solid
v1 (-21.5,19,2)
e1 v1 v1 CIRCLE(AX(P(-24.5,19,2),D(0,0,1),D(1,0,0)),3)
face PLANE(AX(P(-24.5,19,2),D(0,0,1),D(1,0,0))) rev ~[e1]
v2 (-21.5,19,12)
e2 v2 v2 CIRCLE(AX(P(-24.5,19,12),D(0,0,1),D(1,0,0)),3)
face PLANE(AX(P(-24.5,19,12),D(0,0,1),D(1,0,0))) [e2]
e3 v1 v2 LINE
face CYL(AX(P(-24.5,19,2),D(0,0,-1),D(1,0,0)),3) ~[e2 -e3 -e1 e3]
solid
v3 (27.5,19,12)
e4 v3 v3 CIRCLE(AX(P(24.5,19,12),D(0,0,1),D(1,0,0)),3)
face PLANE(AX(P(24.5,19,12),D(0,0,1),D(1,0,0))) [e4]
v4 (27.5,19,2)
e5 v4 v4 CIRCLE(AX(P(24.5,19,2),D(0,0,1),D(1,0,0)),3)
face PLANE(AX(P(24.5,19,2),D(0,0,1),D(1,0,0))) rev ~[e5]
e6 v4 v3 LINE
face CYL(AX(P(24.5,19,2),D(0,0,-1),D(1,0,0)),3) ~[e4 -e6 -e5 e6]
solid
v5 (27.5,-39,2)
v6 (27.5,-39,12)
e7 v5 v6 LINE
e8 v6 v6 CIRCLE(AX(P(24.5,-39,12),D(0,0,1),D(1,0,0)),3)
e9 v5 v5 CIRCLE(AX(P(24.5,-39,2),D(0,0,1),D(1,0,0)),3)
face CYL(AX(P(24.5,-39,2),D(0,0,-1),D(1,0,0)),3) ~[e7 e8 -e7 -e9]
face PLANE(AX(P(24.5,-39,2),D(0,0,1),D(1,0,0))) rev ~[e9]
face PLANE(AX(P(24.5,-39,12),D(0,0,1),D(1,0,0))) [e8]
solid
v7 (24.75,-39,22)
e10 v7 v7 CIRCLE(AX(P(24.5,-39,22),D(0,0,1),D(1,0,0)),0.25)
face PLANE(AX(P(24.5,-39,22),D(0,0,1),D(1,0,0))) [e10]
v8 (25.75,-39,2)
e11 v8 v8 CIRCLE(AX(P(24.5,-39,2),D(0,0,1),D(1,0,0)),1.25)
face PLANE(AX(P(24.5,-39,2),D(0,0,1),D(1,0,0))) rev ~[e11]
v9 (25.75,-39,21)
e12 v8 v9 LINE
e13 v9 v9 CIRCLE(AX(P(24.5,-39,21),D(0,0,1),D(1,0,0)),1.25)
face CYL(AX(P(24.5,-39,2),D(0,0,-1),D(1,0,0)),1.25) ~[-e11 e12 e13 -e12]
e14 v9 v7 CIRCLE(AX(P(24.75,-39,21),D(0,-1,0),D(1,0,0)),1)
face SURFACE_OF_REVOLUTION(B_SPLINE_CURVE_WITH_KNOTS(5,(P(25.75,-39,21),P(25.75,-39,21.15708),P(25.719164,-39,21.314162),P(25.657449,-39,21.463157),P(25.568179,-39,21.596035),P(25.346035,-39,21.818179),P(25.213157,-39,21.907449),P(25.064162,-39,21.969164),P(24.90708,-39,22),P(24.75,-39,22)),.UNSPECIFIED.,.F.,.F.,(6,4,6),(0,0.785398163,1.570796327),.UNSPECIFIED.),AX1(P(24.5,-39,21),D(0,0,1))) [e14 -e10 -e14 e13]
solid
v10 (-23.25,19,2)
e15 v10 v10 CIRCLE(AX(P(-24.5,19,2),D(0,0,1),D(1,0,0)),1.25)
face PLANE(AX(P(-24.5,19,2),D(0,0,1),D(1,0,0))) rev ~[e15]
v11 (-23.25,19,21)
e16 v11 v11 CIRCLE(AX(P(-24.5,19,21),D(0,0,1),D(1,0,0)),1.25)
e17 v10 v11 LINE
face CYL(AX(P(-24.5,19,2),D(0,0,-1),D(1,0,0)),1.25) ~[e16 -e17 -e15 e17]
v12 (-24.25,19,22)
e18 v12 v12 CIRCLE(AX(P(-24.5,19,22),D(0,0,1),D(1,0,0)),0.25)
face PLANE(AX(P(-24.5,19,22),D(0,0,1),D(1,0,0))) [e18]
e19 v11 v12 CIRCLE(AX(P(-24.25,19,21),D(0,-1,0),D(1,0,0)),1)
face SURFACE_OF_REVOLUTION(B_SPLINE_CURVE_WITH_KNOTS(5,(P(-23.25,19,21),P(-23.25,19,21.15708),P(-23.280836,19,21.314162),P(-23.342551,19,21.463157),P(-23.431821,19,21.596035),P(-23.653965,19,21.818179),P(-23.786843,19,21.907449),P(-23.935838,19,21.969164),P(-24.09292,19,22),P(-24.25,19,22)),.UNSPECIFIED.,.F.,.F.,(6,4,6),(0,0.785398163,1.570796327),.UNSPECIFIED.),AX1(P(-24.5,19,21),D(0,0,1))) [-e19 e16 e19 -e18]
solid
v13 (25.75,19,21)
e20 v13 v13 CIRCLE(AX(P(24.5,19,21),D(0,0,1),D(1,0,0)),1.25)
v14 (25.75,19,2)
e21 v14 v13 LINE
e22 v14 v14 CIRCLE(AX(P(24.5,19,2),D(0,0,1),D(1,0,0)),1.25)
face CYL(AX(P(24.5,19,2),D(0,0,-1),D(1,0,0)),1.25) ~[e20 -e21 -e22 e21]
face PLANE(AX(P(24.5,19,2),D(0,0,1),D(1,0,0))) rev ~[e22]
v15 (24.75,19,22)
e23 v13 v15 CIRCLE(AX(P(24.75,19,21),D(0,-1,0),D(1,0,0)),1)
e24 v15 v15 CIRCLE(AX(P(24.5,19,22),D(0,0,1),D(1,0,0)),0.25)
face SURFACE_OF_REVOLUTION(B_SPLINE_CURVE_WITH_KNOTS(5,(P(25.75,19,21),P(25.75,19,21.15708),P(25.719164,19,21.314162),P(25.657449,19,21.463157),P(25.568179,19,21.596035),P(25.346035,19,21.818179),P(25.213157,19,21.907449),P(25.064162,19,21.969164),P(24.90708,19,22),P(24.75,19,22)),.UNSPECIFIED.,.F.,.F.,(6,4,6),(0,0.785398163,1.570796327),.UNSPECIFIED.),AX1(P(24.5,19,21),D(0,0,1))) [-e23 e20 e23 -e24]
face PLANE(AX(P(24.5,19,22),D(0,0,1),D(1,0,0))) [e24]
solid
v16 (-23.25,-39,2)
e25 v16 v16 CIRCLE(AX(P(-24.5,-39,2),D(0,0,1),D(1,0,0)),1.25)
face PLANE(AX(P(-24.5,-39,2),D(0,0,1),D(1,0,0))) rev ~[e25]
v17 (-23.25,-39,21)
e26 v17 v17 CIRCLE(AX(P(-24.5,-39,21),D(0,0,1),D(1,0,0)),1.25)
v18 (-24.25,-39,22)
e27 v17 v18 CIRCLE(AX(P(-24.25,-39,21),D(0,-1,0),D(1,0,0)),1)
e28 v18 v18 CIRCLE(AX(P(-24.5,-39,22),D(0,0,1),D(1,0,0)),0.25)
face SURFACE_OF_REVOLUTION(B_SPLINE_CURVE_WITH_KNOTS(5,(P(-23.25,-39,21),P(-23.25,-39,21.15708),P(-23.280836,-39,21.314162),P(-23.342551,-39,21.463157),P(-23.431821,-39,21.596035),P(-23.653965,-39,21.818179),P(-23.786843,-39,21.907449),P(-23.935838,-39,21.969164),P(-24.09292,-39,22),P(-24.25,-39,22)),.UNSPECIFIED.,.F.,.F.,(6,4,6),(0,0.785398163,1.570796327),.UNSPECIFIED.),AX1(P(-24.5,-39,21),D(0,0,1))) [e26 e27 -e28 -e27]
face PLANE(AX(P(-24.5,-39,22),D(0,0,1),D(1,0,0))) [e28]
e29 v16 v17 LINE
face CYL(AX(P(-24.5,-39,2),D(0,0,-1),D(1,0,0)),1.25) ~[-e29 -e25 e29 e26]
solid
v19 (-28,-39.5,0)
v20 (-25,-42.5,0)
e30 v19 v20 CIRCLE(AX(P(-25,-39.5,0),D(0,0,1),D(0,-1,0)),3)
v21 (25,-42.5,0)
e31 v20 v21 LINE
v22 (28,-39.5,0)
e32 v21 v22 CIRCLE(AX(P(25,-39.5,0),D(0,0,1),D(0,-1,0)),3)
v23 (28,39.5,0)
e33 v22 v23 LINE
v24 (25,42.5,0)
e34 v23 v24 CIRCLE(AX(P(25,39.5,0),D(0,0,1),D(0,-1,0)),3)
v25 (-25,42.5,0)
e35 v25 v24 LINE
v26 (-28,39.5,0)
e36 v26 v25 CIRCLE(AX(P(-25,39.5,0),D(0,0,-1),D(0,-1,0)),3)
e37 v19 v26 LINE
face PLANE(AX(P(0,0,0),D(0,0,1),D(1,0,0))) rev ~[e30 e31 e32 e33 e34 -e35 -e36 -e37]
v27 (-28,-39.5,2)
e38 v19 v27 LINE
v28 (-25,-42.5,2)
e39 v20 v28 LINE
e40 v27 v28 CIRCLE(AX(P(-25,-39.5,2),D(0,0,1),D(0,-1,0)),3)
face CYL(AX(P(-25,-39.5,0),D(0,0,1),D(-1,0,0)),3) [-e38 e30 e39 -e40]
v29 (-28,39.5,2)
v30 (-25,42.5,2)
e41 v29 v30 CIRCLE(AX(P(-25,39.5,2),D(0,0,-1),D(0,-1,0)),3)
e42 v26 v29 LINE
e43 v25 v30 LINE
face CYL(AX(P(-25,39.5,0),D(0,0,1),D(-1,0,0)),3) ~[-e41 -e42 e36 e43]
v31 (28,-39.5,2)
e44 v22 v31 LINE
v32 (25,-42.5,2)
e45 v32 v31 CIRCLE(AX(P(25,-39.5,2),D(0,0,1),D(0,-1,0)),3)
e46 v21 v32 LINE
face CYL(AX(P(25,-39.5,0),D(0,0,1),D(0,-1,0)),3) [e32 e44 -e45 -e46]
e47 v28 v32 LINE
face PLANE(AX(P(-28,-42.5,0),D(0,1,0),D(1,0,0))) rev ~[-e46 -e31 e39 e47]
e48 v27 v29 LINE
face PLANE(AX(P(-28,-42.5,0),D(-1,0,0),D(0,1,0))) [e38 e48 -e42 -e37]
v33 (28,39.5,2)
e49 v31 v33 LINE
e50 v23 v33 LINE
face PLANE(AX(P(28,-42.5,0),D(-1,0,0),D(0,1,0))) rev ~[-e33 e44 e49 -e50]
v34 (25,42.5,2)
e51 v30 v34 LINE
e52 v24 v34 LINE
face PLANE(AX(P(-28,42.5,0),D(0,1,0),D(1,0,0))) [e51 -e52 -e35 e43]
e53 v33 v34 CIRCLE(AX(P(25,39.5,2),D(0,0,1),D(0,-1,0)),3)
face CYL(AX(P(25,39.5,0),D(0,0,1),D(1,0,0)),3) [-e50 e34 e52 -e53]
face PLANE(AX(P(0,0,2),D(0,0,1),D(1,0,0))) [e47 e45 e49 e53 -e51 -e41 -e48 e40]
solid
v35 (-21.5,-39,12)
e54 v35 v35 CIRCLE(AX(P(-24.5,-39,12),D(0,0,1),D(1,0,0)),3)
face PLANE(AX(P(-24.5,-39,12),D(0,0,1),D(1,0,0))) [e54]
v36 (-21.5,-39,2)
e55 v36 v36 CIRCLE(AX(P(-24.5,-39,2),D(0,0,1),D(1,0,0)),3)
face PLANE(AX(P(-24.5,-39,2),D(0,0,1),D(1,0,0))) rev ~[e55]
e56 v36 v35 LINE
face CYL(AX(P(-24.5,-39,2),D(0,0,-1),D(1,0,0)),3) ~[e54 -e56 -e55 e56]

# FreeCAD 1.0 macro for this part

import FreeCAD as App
import Part
import Sketcher

V = App.Vector


def edges_at(feature, points):
    """Names of the edges that pass closest to the given points."""
    edges = feature.Shape.Edges
    near = lambda p: min(range(len(edges)), key=lambda i: edges[i].distToShape(Part.Vertex(*p))[0])
    return sorted({f"Edge{near(p) + 1}" for p in points})


def add_polygon(sketch, points):
    """Adds a closed chain of lines whose ends are joined by coincident constraints."""
    first, n = sketch.GeometryCount, len(points)
    for a, b in zip(points, points[1:] + points[:1]):
        sketch.addGeometry(Part.LineSegment(App.Vector(*a, 0), App.Vector(*b, 0)), False)
    for i in range(n):
        sketch.addConstraint(Sketcher.Constraint("Coincident", first + i, 2, first + (i + 1) % n, 1))

doc = App.newDocument("Part")
params = doc.addObject("Spreadsheet::Sheet", "Params")
for row, (alias, value) in enumerate([
    ("sketch1_width", "56 mm"),
    ("sketch1_height", "85 mm"),
    ("pad1_length", "2 mm"),
    ("fillet_radius", "3 mm"),
    ("sketch2_diameter", "2.5 mm"),
    ("pad2_length", "20 mm"),
    ("fillet2_radius", "1 mm"),
    ("sketch3_diameter", "6 mm"),
    ("pad3_length", "10 mm"),
], start=1):
    params.set(f"A{row}", alias)
    params.set(f"B{row}", "=" + value)
    params.setAlias(f"B{row}", alias)

body = doc.addObject("PartDesign::Body", "Body")

sketch1 = body.newObject("Sketcher::SketchObject", "Sketch")
sketch1.AttachmentSupport = (doc.getObject("XY_Plane"), [""])
sketch1.MapMode = "FlatFace"
add_polygon(sketch1, [(-28, 42.5), (-28, -42.5), (28, -42.5), (28, 42.5)])
sketch1.addConstraint([
    Sketcher.Constraint("Vertical", 0),
    Sketcher.Constraint("Horizontal", 1),
    Sketcher.Constraint("Vertical", 2),
    Sketcher.Constraint("Horizontal", 3),
    Sketcher.Constraint("Symmetric", 0, 2, 2, 2, -1, 1),
    Sketcher.Constraint("DistanceX", 1, 1, 1, 2, 56.0),
    Sketcher.Constraint("DistanceY", 0, 2, 0, 1, 85.0),
])
sketch1.setExpression("Constraints[9]", "Params.sketch1_width")
sketch1.setExpression("Constraints[10]", "Params.sketch1_height")
pad1 = body.newObject("PartDesign::Pad", "Pad")
pad1.Profile = sketch1
pad1.setExpression("Length", "Params.pad1_length")
doc.recompute()

fillet = body.newObject("PartDesign::Fillet", "Fillet")
fillet.Base = (pad1, edges_at(pad1, [
    (-28, 42.5, 1),
    (28, 42.5, 1),
    (28, -42.5, 1),
    (-28, -42.5, 1),
]))
fillet.setExpression("Radius", "Params.fillet_radius")
body2 = doc.addObject("PartDesign::Body", "Body001")
body2.AllowCompound = True

sketch2 = body2.newObject("Sketcher::SketchObject", "Sketch001")
sketch2.AttachmentSupport = (doc.getObject("XY_Plane001"), [""])
sketch2.MapMode = "FlatFace"
sketch2.AttachmentOffset = App.Placement(V(0, 0, 2), App.Rotation())
sketch2.addGeometry([
    Part.Circle(V(-24.5, -39, 0), V(0, 0, 1), 1.25),
    Part.Circle(V(24.5, -39, 0), V(0, 0, 1), 1.25),
    Part.Circle(V(-24.5, 19, 0), V(0, 0, 1), 1.25),
    Part.Circle(V(24.5, 19, 0), V(0, 0, 1), 1.25),
], False)
sketch2.addConstraint([
    Sketcher.Constraint("Equal", 0, 1),
    Sketcher.Constraint("Equal", 1, 2),
    Sketcher.Constraint("Equal", 2, 3),
    Sketcher.Constraint("Symmetric", 0, 3, 1, 3, -2),
    Sketcher.Constraint("Symmetric", 2, 3, 3, 3, -2),
    Sketcher.Constraint("Vertical", 0, 3, 2, 3),
    Sketcher.Constraint("Diameter", 0, 2.5),
    Sketcher.Constraint("DistanceY", 0, 3, -1, 1, 39.0),
    Sketcher.Constraint("DistanceY", -1, 1, 2, 3, 19.0),
    Sketcher.Constraint("DistanceX", 0, 3, 1, 3, 49.0),
])
sketch2.setExpression("Constraints[6]", "Params.sketch2_diameter")
pad2 = body2.newObject("PartDesign::Pad", "Pad001")
pad2.Profile = sketch2
pad2.setExpression("Length", "Params.pad2_length")
doc.recompute()

fillet2 = body2.newObject("PartDesign::Fillet", "Fillet001")
fillet2.Base = (pad2, edges_at(pad2, [
    (-25.75, 19, 22),
    (-25.75, -39, 22),
    (23.25, -39, 22),
    (23.25, 19, 22),
]))
fillet2.setExpression("Radius", "Params.fillet2_radius")
body3 = doc.addObject("PartDesign::Body", "Body002")
body3.AllowCompound = True

sketch3 = body3.newObject("Sketcher::SketchObject", "Sketch002")
sketch3.AttachmentSupport = (doc.getObject("XY_Plane002"), [""])
sketch3.MapMode = "FlatFace"
sketch3.AttachmentOffset = App.Placement(V(0, 0, 2), App.Rotation())
sketch3.addGeometry([
    Part.Circle(V(-24.5, 19, 0), V(0, 0, 1), 3),
    Part.Circle(V(24.5, 19, 0), V(0, 0, 1), 3),
    Part.Circle(V(-24.5, -39, 0), V(0, 0, 1), 3),
    Part.Circle(V(24.5, -39, 0), V(0, 0, 1), 3),
], False)
sketch3.addConstraint([
    Sketcher.Constraint("Equal", 0, 1),
    Sketcher.Constraint("Equal", 1, 2),
    Sketcher.Constraint("Equal", 2, 3),
    Sketcher.Constraint("Symmetric", 0, 3, 1, 3, -2),
    Sketcher.Constraint("Symmetric", 2, 3, 3, 3, -2),
    Sketcher.Constraint("Vertical", 0, 3, 2, 3),
    Sketcher.Constraint("Diameter", 0, 6.0),
    Sketcher.Constraint("DistanceY", -1, 1, 0, 3, 19.0),
    Sketcher.Constraint("DistanceY", 2, 3, -1, 1, 39.0),
    Sketcher.Constraint("DistanceX", 0, 3, 1, 3, 49.0),
])
sketch3.setExpression("Constraints[6]", "Params.sketch3_diameter")
pad3 = body3.newObject("PartDesign::Pad", "Pad002")
pad3.Profile = sketch3
pad3.setExpression("Length", "Params.pad3_length")

doc.recompute()
